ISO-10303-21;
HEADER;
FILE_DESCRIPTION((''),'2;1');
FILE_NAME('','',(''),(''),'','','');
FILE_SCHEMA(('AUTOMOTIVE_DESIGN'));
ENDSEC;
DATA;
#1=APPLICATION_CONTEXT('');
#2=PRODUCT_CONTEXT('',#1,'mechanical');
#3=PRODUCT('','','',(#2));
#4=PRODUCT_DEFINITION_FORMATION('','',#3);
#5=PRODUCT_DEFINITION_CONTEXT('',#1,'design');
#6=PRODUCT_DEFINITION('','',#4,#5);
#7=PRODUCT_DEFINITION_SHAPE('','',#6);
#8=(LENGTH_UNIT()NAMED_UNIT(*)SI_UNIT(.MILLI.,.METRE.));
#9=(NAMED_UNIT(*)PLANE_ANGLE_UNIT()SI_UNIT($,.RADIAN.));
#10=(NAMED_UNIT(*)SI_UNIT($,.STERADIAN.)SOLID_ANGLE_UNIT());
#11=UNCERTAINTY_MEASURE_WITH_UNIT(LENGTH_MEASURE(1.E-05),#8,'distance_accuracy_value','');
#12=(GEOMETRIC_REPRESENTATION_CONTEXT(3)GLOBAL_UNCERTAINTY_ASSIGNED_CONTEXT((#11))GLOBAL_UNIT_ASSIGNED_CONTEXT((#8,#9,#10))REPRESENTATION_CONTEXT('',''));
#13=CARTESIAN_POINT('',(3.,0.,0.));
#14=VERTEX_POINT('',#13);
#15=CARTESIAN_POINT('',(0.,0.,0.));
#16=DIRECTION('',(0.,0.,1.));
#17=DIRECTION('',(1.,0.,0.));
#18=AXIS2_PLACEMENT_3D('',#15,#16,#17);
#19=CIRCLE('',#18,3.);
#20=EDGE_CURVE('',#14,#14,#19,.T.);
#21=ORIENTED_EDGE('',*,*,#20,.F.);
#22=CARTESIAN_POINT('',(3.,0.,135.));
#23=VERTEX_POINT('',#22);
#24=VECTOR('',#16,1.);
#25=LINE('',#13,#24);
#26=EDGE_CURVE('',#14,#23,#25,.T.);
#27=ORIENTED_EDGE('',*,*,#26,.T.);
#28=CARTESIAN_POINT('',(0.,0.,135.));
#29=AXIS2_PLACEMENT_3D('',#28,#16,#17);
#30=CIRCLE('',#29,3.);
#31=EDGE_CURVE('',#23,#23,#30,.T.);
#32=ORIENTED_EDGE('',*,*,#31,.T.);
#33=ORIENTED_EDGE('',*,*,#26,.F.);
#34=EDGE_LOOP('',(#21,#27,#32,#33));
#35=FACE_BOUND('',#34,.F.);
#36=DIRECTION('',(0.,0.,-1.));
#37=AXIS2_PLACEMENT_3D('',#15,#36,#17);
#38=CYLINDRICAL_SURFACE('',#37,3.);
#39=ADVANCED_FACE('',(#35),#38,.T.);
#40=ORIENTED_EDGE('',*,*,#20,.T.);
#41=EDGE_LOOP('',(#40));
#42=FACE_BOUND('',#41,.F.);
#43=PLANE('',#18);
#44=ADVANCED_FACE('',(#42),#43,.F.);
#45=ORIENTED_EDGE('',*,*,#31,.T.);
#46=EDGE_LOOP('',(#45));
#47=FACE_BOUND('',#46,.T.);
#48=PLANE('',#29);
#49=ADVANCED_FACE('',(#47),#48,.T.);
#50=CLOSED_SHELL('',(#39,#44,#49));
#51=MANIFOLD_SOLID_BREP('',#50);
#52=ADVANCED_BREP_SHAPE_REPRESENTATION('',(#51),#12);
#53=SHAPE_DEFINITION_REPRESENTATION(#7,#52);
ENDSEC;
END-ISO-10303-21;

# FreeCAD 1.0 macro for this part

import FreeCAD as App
import Part
import Sketcher
Q = App.Units.Quantity

doc = App.newDocument("Part")
body = doc.addObject("PartDesign::Body", "Body")

sketch1 = doc.addObject("Sketcher::SketchObject", "Sketch")
body.addObject(sketch1)
sketch1.AttachmentSupport = (doc.XY_Plane, [""])
sketch1.MapMode = "FlatFace"
sketch1.addGeometry(Part.Circle(App.Vector(0, 0, 0), App.Vector(0, 0, 1), 3), False)
sketch1.addConstraint([
    Sketcher.Constraint("Coincident", 0, 3, -1, 1),
    Sketcher.Constraint("Diameter", 0, Q("6 mm")),
])
pad1 = doc.addObject("PartDesign::Pad", "Pad")
body.addObject(pad1)
pad1.Profile = sketch1
pad1.Length = 135

doc.recompute()
